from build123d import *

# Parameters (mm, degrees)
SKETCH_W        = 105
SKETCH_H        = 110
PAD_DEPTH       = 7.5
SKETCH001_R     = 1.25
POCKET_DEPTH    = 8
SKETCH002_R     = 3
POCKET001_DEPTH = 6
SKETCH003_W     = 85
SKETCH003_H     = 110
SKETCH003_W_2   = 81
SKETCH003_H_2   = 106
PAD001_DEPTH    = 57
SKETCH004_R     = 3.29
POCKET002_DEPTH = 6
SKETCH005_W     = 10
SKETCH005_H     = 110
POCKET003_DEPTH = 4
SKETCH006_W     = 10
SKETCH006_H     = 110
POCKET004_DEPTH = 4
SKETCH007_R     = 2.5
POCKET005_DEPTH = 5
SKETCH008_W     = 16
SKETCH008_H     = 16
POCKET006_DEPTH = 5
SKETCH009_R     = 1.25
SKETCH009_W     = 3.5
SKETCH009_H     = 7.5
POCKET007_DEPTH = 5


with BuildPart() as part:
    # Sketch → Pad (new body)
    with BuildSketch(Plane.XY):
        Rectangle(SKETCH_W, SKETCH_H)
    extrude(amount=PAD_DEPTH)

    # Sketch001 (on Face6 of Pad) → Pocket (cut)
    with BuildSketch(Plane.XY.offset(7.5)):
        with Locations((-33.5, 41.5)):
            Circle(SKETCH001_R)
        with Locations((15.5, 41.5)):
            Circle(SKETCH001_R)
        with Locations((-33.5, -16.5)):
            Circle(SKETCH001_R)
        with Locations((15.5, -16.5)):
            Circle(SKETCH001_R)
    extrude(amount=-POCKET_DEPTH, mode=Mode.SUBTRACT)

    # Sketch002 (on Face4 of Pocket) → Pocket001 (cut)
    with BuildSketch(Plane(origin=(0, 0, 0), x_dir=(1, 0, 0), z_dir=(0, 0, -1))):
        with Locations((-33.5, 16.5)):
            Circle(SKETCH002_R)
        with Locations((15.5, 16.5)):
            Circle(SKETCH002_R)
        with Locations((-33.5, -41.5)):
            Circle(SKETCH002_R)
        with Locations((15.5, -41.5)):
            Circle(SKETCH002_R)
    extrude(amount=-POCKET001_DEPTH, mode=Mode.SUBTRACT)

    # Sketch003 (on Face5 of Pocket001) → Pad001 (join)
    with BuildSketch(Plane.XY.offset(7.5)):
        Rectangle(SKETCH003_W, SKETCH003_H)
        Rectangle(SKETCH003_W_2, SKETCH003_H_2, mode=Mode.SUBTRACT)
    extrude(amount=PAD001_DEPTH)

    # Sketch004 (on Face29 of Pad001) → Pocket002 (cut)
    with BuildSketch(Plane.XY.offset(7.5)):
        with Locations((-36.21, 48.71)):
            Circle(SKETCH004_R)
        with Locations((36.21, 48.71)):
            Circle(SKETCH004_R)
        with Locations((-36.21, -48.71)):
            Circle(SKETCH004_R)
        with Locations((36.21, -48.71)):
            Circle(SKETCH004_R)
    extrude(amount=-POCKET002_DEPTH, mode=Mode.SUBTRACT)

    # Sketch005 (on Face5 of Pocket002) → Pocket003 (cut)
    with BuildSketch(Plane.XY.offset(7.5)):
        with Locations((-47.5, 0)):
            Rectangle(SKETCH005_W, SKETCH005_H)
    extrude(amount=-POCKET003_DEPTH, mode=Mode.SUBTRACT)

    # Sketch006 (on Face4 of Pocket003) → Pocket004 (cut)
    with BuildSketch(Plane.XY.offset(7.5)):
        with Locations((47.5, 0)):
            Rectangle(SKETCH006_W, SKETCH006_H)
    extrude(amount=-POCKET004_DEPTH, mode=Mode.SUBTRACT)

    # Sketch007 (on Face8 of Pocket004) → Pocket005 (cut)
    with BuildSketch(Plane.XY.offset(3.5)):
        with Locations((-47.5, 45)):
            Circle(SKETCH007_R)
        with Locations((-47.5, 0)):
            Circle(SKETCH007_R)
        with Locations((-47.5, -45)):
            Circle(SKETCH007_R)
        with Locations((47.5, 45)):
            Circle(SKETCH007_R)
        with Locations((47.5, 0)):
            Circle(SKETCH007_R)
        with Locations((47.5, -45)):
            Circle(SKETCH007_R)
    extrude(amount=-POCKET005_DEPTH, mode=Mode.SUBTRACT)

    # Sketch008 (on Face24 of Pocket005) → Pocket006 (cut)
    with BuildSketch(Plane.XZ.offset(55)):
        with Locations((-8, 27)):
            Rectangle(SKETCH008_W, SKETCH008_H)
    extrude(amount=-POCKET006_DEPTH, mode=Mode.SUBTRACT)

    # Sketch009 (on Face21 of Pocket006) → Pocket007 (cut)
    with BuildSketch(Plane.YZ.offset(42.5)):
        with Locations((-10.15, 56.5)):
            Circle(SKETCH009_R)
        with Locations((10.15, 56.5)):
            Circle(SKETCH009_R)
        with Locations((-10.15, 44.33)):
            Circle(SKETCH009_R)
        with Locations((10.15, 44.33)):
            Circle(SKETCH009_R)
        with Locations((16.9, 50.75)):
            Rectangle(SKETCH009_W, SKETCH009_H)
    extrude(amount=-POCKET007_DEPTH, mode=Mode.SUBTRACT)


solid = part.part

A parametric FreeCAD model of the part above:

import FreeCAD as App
import Part
import Sketcher
from FreeCAD import Vector
Q = App.Units.Quantity


def add_polygon(sketch, points):
    """Adds a closed chain of lines whose ends are joined by coincident constraints."""
    first, n = sketch.GeometryCount, len(points)
    for a, b in zip(points, points[1:] + points[:1]):
        sketch.addGeometry(Part.LineSegment(App.Vector(*a, 0), App.Vector(*b, 0)), False)
    for i in range(n):
        sketch.addConstraint(Sketcher.Constraint("Coincident", first + i, 2, first + (i + 1) % n, 1))

doc = App.newDocument("Part")
body = doc.addObject("PartDesign::Body", "Body")

# Sketch on XY plane
sketch1 = body.newObject("Sketcher::SketchObject", "Sketch")
sketch1.AttachmentSupport = (doc.getObject("XY_Plane"), [""])
sketch1.MapMode = "FlatFace"
add_polygon(sketch1, [(-52, 55), (-52, -55), (52, -55), (52, 55)])  # lines 0-3
sketch1.addConstraint(Sketcher.Constraint("Vertical", 0))
sketch1.addConstraint(Sketcher.Constraint("Horizontal", 1))
sketch1.addConstraint(Sketcher.Constraint("Vertical", 2))
sketch1.addConstraint(Sketcher.Constraint("Horizontal", 3))
sketch1.addConstraint(Sketcher.Constraint("Symmetric", 0, 2, 2, 2, -1, 1))
sketch1.addConstraint(Sketcher.Constraint("DistanceX", 1, 1, 1, 2, Q("105 mm")))
sketch1.addConstraint(Sketcher.Constraint("DistanceY", 0, 2, 0, 1, Q("110 mm")))
pad1 = body.newObject("PartDesign::Pad", "Pad")
pad1.Profile = sketch1
pad1.Length = 7.5

# Sketch on XY plane
sketch2 = body.newObject("Sketcher::SketchObject", "Sketch001")
sketch2.AttachmentSupport = (doc.getObject("XY_Plane"), [""])
sketch2.MapMode = "FlatFace"
sketch2.AttachmentOffset = App.Placement(Vector(0, 0, 7.5), App.Rotation())
sketch2.addGeometry(Part.Circle(Vector(-33.5, 41.5, 0), Vector(0, 0, 1), 1.2), False)
sketch2.addGeometry(Part.Circle(Vector(15.5, 41.5, 0), Vector(0, 0, 1), 1.2), False)
sketch2.addGeometry(Part.Circle(Vector(-33.5, -16.5, 0), Vector(0, 0, 1), 1.2), False)
sketch2.addGeometry(Part.Circle(Vector(15.5, -16.5, 0), Vector(0, 0, 1), 1.2), False)
sketch2.addConstraint(Sketcher.Constraint("Equal", 0, 1))
sketch2.addConstraint(Sketcher.Constraint("Equal", 1, 2))
sketch2.addConstraint(Sketcher.Constraint("Equal", 2, 3))
sketch2.addConstraint(Sketcher.Constraint("Horizontal", 0, 3, 1, 3))
sketch2.addConstraint(Sketcher.Constraint("Horizontal", 2, 3, 3, 3))
sketch2.addConstraint(Sketcher.Constraint("Vertical", 0, 3, 2, 3))
sketch2.addConstraint(Sketcher.Constraint("Vertical", 1, 3, 3, 3))
sketch2.addConstraint(Sketcher.Constraint("Diameter", 0, Q("2.5 mm")))
sketch2.addConstraint(Sketcher.Constraint("DistanceX", 0, 3, 1, 3, Q("49 mm")))
sketch2.addConstraint(Sketcher.Constraint("DistanceY", 2, 3, 0, 3, Q("58 mm")))
sketch2.addConstraint(Sketcher.Constraint("DistanceX", 0, 3, -1, 1, Q("33.5 mm")))
sketch2.addConstraint(Sketcher.Constraint("DistanceY", -1, 1, 0, 3, Q("41.5 mm")))
pocket1 = body.newObject("PartDesign::Pocket", "Pocket")
pocket1.Profile = sketch2
pocket1.Length = 8

# Sketch on XY plane
sketch3 = body.newObject("Sketcher::SketchObject", "Sketch002")
sketch3.AttachmentSupport = (doc.getObject("XY_Plane"), [""])
sketch3.MapMode = "FlatFace"
sketch3.addGeometry(Part.Circle(Vector(-33.5, -16.5, 0), Vector(0, 0, 1), 3), False)
sketch3.addGeometry(Part.Circle(Vector(15.5, -16.5, 0), Vector(0, 0, 1), 3), False)
sketch3.addGeometry(Part.Circle(Vector(-33.5, 41.5, 0), Vector(0, 0, 1), 3), False)
sketch3.addGeometry(Part.Circle(Vector(15.5, 41.5, 0), Vector(0, 0, 1), 3), False)
sketch3.addConstraint(Sketcher.Constraint("Equal", 0, 1))
sketch3.addConstraint(Sketcher.Constraint("Equal", 1, 2))
sketch3.addConstraint(Sketcher.Constraint("Equal", 2, 3))
sketch3.addConstraint(Sketcher.Constraint("Horizontal", 0, 3, 1, 3))
sketch3.addConstraint(Sketcher.Constraint("Horizontal", 2, 3, 3, 3))
sketch3.addConstraint(Sketcher.Constraint("Vertical", 0, 3, 2, 3))
sketch3.addConstraint(Sketcher.Constraint("Vertical", 1, 3, 3, 3))
sketch3.addConstraint(Sketcher.Constraint("Diameter", 0, Q("6 mm")))
sketch3.addConstraint(Sketcher.Constraint("DistanceX", 0, 3, 1, 3, Q("49 mm")))
sketch3.addConstraint(Sketcher.Constraint("DistanceY", 0, 3, 2, 3, Q("58 mm")))
sketch3.addConstraint(Sketcher.Constraint("DistanceX", 0, 3, -1, 1, Q("33.5 mm")))
sketch3.addConstraint(Sketcher.Constraint("DistanceY", 0, 3, -1, 1, Q("16.5 mm")))
pocket2 = body.newObject("PartDesign::Pocket", "Pocket001")
pocket2.Profile = sketch3
pocket2.Length = 6
pocket2.Reversed = True

# Sketch on XY plane
sketch4 = body.newObject("Sketcher::SketchObject", "Sketch003")
sketch4.AttachmentSupport = (doc.getObject("XY_Plane"), [""])
sketch4.MapMode = "FlatFace"
sketch4.AttachmentOffset = App.Placement(Vector(0, 0, 7.5), App.Rotation())
add_polygon(sketch4, [(-42, 55), (-42, -55), (42, -55), (42, 55)])  # lines 0-3
add_polygon(sketch4, [(40, -53), (-40, -53), (-40, 53), (40, 53)])  # lines 4-7
sketch4.addConstraint(Sketcher.Constraint("Vertical", 0))
sketch4.addConstraint(Sketcher.Constraint("Horizontal", 1))
sketch4.addConstraint(Sketcher.Constraint("Vertical", 2))
sketch4.addConstraint(Sketcher.Constraint("Horizontal", 3))
sketch4.addConstraint(Sketcher.Constraint("Horizontal", 4))
sketch4.addConstraint(Sketcher.Constraint("Vertical", 5))
sketch4.addConstraint(Sketcher.Constraint("Horizontal", 6))
sketch4.addConstraint(Sketcher.Constraint("Vertical", 7))
sketch4.addConstraint(Sketcher.Constraint("Symmetric", 0, 2, 2, 2, -1, 1))
sketch4.addConstraint(Sketcher.Constraint("Symmetric", 4, 2, 6, 2, -1, 1))
sketch4.addConstraint(Sketcher.Constraint("DistanceX", 1, 1, 1, 2, Q("85 mm")))
sketch4.addConstraint(Sketcher.Constraint("DistanceX", 4, 2, 4, 1, Q("81 mm")))
sketch4.addConstraint(Sketcher.Constraint("DistanceY", 0, 2, 0, 1, Q("110 mm")))
sketch4.addConstraint(Sketcher.Constraint("DistanceY", 5, 1, 5, 2, Q("106 mm")))
pad2 = body.newObject("PartDesign::Pad", "Pad001")
pad2.Profile = sketch4
pad2.Length = 57

# Sketch on XY plane
sketch5 = body.newObject("Sketcher::SketchObject", "Sketch004")
sketch5.AttachmentSupport = (doc.getObject("XY_Plane"), [""])
sketch5.MapMode = "FlatFace"
sketch5.AttachmentOffset = App.Placement(Vector(0, 0, 7.5), App.Rotation())
sketch5.addGeometry(Part.Circle(Vector(-36.2, 48.7, 0), Vector(0, 0, 1), 3.3), False)
sketch5.addGeometry(Part.Circle(Vector(36.2, 48.7, 0), Vector(0, 0, 1), 3.3), False)
sketch5.addGeometry(Part.Circle(Vector(-36.2, -48.7, 0), Vector(0, 0, 1), 3.3), False)
sketch5.addGeometry(Part.Circle(Vector(36.2, -48.7, 0), Vector(0, 0, 1), 3.3), False)
sketch5.addConstraint(Sketcher.Constraint("Equal", 0, 1))
sketch5.addConstraint(Sketcher.Constraint("Equal", 1, 2))
sketch5.addConstraint(Sketcher.Constraint("Equal", 2, 3))
sketch5.addConstraint(Sketcher.Constraint("Symmetric", 1, 3, 2, 3, -1, 1))
sketch5.addConstraint(Sketcher.Constraint("Symmetric", 0, 3, 3, 3, -1, 1))
sketch5.addConstraint(Sketcher.Constraint("Symmetric", 0, 3, 1, 3, -2))
sketch5.addConstraint(Sketcher.Constraint("Diameter", 0, Q("6.58 mm")))
sketch5.addConstraint(Sketcher.Constraint("DistanceX", 0, 3, -1, 1, Q("36.21 mm")))
sketch5.addConstraint(Sketcher.Constraint("DistanceY", -1, 1, 0, 3, Q("48.71 mm")))
pocket3 = body.newObject("PartDesign::Pocket", "Pocket002")
pocket3.Profile = sketch5
pocket3.Length = 6

# Sketch on XY plane
sketch6 = body.newObject("Sketcher::SketchObject", "Sketch005")
sketch6.AttachmentSupport = (doc.getObject("XY_Plane"), [""])
sketch6.MapMode = "FlatFace"
sketch6.AttachmentOffset = App.Placement(Vector(0, 0, 7.5), App.Rotation())
add_polygon(sketch6, [(-52, 55), (-52, -55), (-42, -55), (-42, 55)])  # lines 0-3
sketch6.addConstraint(Sketcher.Constraint("Vertical", 0))
sketch6.addConstraint(Sketcher.Constraint("Horizontal", 1))
sketch6.addConstraint(Sketcher.Constraint("Vertical", 2))
sketch6.addConstraint(Sketcher.Constraint("Horizontal", 3))
sketch6.addConstraint(Sketcher.Constraint("DistanceX", 1, 1, 1, 2, Q("10 mm")))
sketch6.addConstraint(Sketcher.Constraint("DistanceY", 0, 2, 0, 1, Q("110 mm")))
sketch6.addConstraint(Sketcher.Constraint("DistanceY", 0, 2, -1, 1, Q("55 mm")))
sketch6.addConstraint(Sketcher.Constraint("DistanceX", 0, 2, -1, 1, Q("52.5 mm")))
pocket4 = body.newObject("PartDesign::Pocket", "Pocket003")
pocket4.Profile = sketch6
pocket4.Length = 4

# Sketch on XY plane
sketch7 = body.newObject("Sketcher::SketchObject", "Sketch006")
sketch7.AttachmentSupport = (doc.getObject("XY_Plane"), [""])
sketch7.MapMode = "FlatFace"
sketch7.AttachmentOffset = App.Placement(Vector(0, 0, 7.5), App.Rotation())
add_polygon(sketch7, [(42, 55), (42, -55), (52, -55), (52, 55)])  # lines 0-3
sketch7.addConstraint(Sketcher.Constraint("Vertical", 0))
sketch7.addConstraint(Sketcher.Constraint("Horizontal", 1))
sketch7.addConstraint(Sketcher.Constraint("Vertical", 2))
sketch7.addConstraint(Sketcher.Constraint("Horizontal", 3))
sketch7.addConstraint(Sketcher.Constraint("DistanceX", 1, 1, 1, 2, Q("10 mm")))
sketch7.addConstraint(Sketcher.Constraint("DistanceY", 0, 2, 0, 1, Q("110 mm")))
sketch7.addConstraint(Sketcher.Constraint("DistanceY", 0, 2, -1, 1, Q("55 mm")))
sketch7.addConstraint(Sketcher.Constraint("DistanceX", -1, 1, 0, 2, Q("42.5 mm")))
pocket5 = body.newObject("PartDesign::Pocket", "Pocket004")
pocket5.Profile = sketch7
pocket5.Length = 4

# Sketch on XY plane
sketch8 = body.newObject("Sketcher::SketchObject", "Sketch007")
sketch8.AttachmentSupport = (doc.getObject("XY_Plane"), [""])
sketch8.MapMode = "FlatFace"
sketch8.AttachmentOffset = App.Placement(Vector(0, 0, 3.5), App.Rotation())
sketch8.addGeometry(Part.Circle(Vector(-47.5, 45, 0), Vector(0, 0, 1), 2.5), False)
sketch8.addGeometry(Part.Circle(Vector(-47.5, 0, 0), Vector(0, 0, 1), 2.5), False)
sketch8.addGeometry(Part.Circle(Vector(-47.5, -45, 0), Vector(0, 0, 1), 2.5), False)
sketch8.addGeometry(Part.Circle(Vector(47.5, 45, 0), Vector(0, 0, 1), 2.5), False)
sketch8.addGeometry(Part.Circle(Vector(47.5, 0, 0), Vector(0, 0, 1), 2.5), False)
sketch8.addGeometry(Part.Circle(Vector(47.5, -45, 0), Vector(0, 0, 1), 2.5), False)
sketch8.addConstraint(Sketcher.Constraint("Equal", 0, 1))
sketch8.addConstraint(Sketcher.Constraint("Equal", 1, 2))
sketch8.addConstraint(Sketcher.Constraint("Equal", 2, 3))
sketch8.addConstraint(Sketcher.Constraint("Equal", 3, 4))
sketch8.addConstraint(Sketcher.Constraint("Equal", 4, 5))
sketch8.addConstraint(Sketcher.Constraint("Symmetric", 2, 3, 3, 3, -1, 1))
sketch8.addConstraint(Sketcher.Constraint("Symmetric", 1, 3, 4, 3, -1, 1))
sketch8.addConstraint(Sketcher.Constraint("Symmetric", 0, 3, 5, 3, -1, 1))
sketch8.addConstraint(Sketcher.Constraint("Symmetric", 0, 3, 3, 3, -2))
sketch8.addConstraint(Sketcher.Constraint("PointOnObject", 1, 3, -1))
sketch8.addConstraint(Sketcher.Constraint("Vertical", 0, 3, 1, 3))
sketch8.addConstraint(Sketcher.Constraint("Diameter", 0, Q("5 mm")))
sketch8.addConstraint(Sketcher.Constraint("DistanceY", -1, 1, 0, 3, Q("45 mm")))
sketch8.addConstraint(Sketcher.Constraint("DistanceX", 0, 3, 3, 3, Q("95 mm")))
pocket6 = body.newObject("PartDesign::Pocket", "Pocket005")
pocket6.Profile = sketch8
pocket6.Length = 5

# Sketch on XZ plane
sketch9 = body.newObject("Sketcher::SketchObject", "Sketch008")
sketch9.AttachmentSupport = (doc.getObject("XZ_Plane"), [""])
sketch9.MapMode = "FlatFace"
sketch9.AttachmentOffset = App.Placement(Vector(0, 0, 55), App.Rotation())
add_polygon(sketch9, [(-16, 35), (-16, 19), (0, 19), (0, 35)])  # lines 0-3
sketch9.addConstraint(Sketcher.Constraint("Vertical", 0))
sketch9.addConstraint(Sketcher.Constraint("Horizontal", 1))
sketch9.addConstraint(Sketcher.Constraint("Vertical", 2))
sketch9.addConstraint(Sketcher.Constraint("Horizontal", 3))
sketch9.addConstraint(Sketcher.Constraint("PointOnObject", 1, 2, -2))
sketch9.addConstraint(Sketcher.Constraint("Equal", 3, 0))
sketch9.addConstraint(Sketcher.Constraint("DistanceX", 1, 1, 1, 2, Q("16 mm")))
sketch9.addConstraint(Sketcher.Constraint("DistanceY", -1, 1, 0, 2, Q("19 mm")))
pocket7 = body.newObject("PartDesign::Pocket", "Pocket006")
pocket7.Profile = sketch9
pocket7.Length = 5

# Sketch on YZ plane
sketch10 = body.newObject("Sketcher::SketchObject", "Sketch009")
sketch10.AttachmentSupport = (doc.getObject("YZ_Plane"), [""])
sketch10.MapMode = "FlatFace"
sketch10.AttachmentOffset = App.Placement(Vector(0, 0, 42.5), App.Rotation())
sketch10.addGeometry(Part.Circle(Vector(-10.2, 56.5, 0), Vector(0, 0, 1), 1.2), False)  # 0
sketch10.addGeometry(Part.Circle(Vector(10.2, 56.5, 0), Vector(0, 0, 1), 1.2), False)  # 1
sketch10.addGeometry(Part.Circle(Vector(-10.2, 44.3, 0), Vector(0, 0, 1), 1.2), False)  # 2
sketch10.addGeometry(Part.Circle(Vector(10.2, 44.3, 0), Vector(0, 0, 1), 1.2), False)  # 3
add_polygon(sketch10, [(15.2, 54.5), (15.2, 47), (18.6, 47), (18.6, 54.5)])  # lines 4-7
sketch10.addConstraint(Sketcher.Constraint("Vertical", 4))
sketch10.addConstraint(Sketcher.Constraint("Horizontal", 5))
sketch10.addConstraint(Sketcher.Constraint("Vertical", 6))
sketch10.addConstraint(Sketcher.Constraint("Horizontal", 7))
sketch10.addConstraint(Sketcher.Constraint("Equal", 0, 1))
sketch10.addConstraint(Sketcher.Constraint("Equal", 1, 2))
sketch10.addConstraint(Sketcher.Constraint("Equal", 2, 3))
sketch10.addConstraint(Sketcher.Constraint("Symmetric", 0, 3, 1, 3, -2))
sketch10.addConstraint(Sketcher.Constraint("Symmetric", 2, 3, 3, 3, -2))
sketch10.addConstraint(Sketcher.Constraint("Vertical", 0, 3, 2, 3))
sketch10.addConstraint(Sketcher.Constraint("Diameter", 0, Q("2.5 mm")))
sketch10.addConstraint(Sketcher.Constraint("DistanceX", 5, 1, 5, 2, Q("3.5 mm")))
sketch10.addConstraint(Sketcher.Constraint("DistanceY", 4, 2, 4, 1, Q("7.5 mm")))
sketch10.addConstraint(Sketcher.Constraint("DistanceY", -1, 1, 4, 2, Q("47 mm")))
sketch10.addConstraint(Sketcher.Constraint("DistanceX", 3, 3, 4, 2, Q("5 mm")))
sketch10.addConstraint(Sketcher.Constraint("DistanceY", 6, 2, 1, 3, Q("2 mm")))
sketch10.addConstraint(Sketcher.Constraint("DistanceX", 0, 3, 1, 3, Q("20.3 mm")))
sketch10.addConstraint(Sketcher.Constraint("DistanceY", -1, 1, 2, 3, Q("44.33 mm")))
pocket8 = body.newObject("PartDesign::Pocket", "Pocket007")
pocket8.Profile = sketch10
pocket8.Length = 5

doc.recompute()
